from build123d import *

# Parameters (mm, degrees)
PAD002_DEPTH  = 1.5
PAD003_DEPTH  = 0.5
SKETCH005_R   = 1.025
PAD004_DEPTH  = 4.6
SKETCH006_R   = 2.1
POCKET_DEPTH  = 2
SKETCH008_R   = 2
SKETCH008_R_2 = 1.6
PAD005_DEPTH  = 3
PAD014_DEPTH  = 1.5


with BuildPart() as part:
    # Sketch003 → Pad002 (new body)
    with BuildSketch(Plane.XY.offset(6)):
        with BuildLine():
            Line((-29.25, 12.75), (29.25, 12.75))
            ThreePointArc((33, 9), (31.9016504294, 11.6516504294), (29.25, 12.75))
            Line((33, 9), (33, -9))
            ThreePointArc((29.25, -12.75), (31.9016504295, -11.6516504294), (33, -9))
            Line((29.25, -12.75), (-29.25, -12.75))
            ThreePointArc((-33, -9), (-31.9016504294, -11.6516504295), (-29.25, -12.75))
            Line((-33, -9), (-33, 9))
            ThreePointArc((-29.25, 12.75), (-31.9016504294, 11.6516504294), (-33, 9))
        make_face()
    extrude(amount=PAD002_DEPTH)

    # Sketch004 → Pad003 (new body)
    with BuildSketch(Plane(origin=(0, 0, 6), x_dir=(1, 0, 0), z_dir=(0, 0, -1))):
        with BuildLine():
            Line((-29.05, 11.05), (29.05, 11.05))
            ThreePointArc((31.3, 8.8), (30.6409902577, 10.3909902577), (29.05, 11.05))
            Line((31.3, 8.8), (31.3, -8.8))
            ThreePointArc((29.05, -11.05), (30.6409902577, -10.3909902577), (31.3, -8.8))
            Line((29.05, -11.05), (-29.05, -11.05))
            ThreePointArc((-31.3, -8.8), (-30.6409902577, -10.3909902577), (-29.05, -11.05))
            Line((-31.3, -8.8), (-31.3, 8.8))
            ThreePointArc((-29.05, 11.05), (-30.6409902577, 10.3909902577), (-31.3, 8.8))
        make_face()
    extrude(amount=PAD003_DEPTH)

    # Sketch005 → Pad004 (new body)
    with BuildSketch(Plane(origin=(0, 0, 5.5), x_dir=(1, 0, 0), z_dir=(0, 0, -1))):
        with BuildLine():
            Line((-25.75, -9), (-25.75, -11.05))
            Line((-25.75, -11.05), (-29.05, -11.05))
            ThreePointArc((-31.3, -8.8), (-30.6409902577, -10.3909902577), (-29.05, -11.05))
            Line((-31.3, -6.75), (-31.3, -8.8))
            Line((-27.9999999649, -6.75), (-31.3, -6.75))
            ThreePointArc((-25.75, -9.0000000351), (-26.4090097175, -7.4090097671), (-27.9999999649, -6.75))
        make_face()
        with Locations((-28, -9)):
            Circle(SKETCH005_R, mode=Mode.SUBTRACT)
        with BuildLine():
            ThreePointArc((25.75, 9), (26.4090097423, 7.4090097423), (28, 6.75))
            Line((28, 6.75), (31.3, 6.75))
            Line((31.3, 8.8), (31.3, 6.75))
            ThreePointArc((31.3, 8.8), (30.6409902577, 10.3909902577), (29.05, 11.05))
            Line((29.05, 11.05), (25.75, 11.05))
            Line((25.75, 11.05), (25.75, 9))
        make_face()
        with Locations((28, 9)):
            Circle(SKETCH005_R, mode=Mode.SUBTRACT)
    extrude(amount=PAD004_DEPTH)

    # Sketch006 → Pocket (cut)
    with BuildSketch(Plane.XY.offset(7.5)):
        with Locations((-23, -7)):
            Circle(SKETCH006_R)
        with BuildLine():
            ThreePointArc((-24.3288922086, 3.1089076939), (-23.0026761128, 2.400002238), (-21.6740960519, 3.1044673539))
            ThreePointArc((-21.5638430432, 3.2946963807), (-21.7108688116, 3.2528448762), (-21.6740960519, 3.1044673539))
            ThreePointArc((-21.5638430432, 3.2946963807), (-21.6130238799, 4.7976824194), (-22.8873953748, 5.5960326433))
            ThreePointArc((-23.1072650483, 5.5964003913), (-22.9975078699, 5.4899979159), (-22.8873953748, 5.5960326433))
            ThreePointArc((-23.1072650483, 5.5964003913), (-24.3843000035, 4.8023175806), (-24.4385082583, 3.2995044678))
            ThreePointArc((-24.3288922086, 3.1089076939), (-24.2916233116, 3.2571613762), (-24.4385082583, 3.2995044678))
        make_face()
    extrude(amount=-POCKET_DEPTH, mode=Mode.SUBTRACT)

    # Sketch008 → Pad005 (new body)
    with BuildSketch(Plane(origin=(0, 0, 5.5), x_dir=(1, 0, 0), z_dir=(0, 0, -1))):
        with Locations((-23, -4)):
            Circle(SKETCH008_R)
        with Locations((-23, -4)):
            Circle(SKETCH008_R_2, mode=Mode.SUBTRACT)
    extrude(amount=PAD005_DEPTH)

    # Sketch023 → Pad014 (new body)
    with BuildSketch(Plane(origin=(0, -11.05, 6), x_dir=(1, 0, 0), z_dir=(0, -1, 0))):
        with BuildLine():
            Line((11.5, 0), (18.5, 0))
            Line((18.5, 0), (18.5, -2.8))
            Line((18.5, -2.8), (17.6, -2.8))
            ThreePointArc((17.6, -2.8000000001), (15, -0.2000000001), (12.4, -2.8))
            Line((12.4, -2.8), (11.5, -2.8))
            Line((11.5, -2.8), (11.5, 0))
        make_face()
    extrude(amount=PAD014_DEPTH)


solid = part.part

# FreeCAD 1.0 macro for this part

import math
import FreeCAD as App
import Part
import Sketcher
from FreeCAD import Vector
Q = App.Units.Quantity

doc = App.newDocument("Part")
body = doc.addObject("PartDesign::Body", "Body")

# Sketch on XY plane
sketch1 = body.newObject("Sketcher::SketchObject", "Sketch")
sketch1.AttachmentSupport = (doc.getObject("XY_Plane"), [""])
sketch1.MapMode = "FlatFace"
sketch1.AttachmentOffset = App.Placement(Vector(0, 0, 6), App.Rotation())
sketch1.addGeometry(Part.LineSegment(Vector(29.2, 12.8, 0), Vector(-29.2, 12.8, 0)), False)
sketch1.addGeometry(Part.ArcOfCircle(Part.Circle(Vector(-29.2, 9, 0), Vector(0, 0, 1), 3.8), math.radians(90), math.radians(180)), False)
sketch1.addGeometry(Part.LineSegment(Vector(-33, 9, 0), Vector(-33, -9, 0)), False)
sketch1.addGeometry(Part.ArcOfCircle(Part.Circle(Vector(-29.2, -9, 0), Vector(0, 0, 1), 3.8), math.radians(180), math.radians(270)), False)
sketch1.addGeometry(Part.LineSegment(Vector(-29.2, -12.8, 0), Vector(29.2, -12.8, 0)), False)
sketch1.addGeometry(Part.ArcOfCircle(Part.Circle(Vector(29.2, -9, 0), Vector(0, 0, 1), 3.8), math.radians(-90), math.radians(0)), False)
sketch1.addGeometry(Part.LineSegment(Vector(33, -9, 0), Vector(33, 9, 0)), False)
sketch1.addGeometry(Part.ArcOfCircle(Part.Circle(Vector(29.2, 9, 0), Vector(0, 0, 1), 3.8), math.radians(0), math.radians(90)), False)
sketch1.addConstraint(Sketcher.Constraint("Tangent", 0, 2, 1, 1))
sketch1.addConstraint(Sketcher.Constraint("Tangent", 1, 2, 2, 1))
sketch1.addConstraint(Sketcher.Constraint("Tangent", 2, 2, 3, 1))
sketch1.addConstraint(Sketcher.Constraint("Tangent", 3, 2, 4, 1))
sketch1.addConstraint(Sketcher.Constraint("Tangent", 4, 2, 5, 1))
sketch1.addConstraint(Sketcher.Constraint("Tangent", 5, 2, 6, 1))
sketch1.addConstraint(Sketcher.Constraint("Tangent", 6, 2, 7, 1))
sketch1.addConstraint(Sketcher.Constraint("Tangent", 7, 2, 0, 1))
sketch1.addConstraint(Sketcher.Constraint("Horizontal", 0))
sketch1.addConstraint(Sketcher.Constraint("Vertical", 2))
sketch1.addConstraint(Sketcher.Constraint("Horizontal", 4))
sketch1.addConstraint(Sketcher.Constraint("Vertical", 6))
sketch1.addConstraint(Sketcher.Constraint("Equal", 1, 3))
sketch1.addConstraint(Sketcher.Constraint("Equal", 3, 5))
sketch1.addConstraint(Sketcher.Constraint("Equal", 5, 7))
sketch1.addConstraint(Sketcher.Constraint("Symmetric", 1, 3, 5, 3, -1, 1))
sketch1.addConstraint(Sketcher.Constraint("DistanceY", 2, 2, 2, 1, Q("18 mm")))
sketch1.addConstraint(Sketcher.Constraint("Radius", 1, Q("3.75 mm")))
sketch1.addConstraint(Sketcher.Constraint("DistanceX", 0, 2, 0, 1, Q("58.5 mm")))
pad1 = body.newObject("PartDesign::Pad", "Pad")
pad1.Profile = sketch1
pad1.Length = 1.5

# Sketch on XY plane
sketch2 = body.newObject("Sketcher::SketchObject", "Sketch001")
sketch2.AttachmentSupport = (doc.getObject("XY_Plane"), [""])
sketch2.MapMode = "FlatFace"
sketch2.AttachmentOffset = App.Placement(Vector(0, 0, 6), App.Rotation())
sketch2.addGeometry(Part.LineSegment(Vector(29.1, -11.1, 0), Vector(-29.1, -11.1, 0)), False)
sketch2.addGeometry(Part.ArcOfCircle(Part.Circle(Vector(-29.1, -8.8, 0), Vector(0, 0, 1), 2.2), math.radians(180), math.radians(270)), False)
sketch2.addGeometry(Part.LineSegment(Vector(-31.3, -8.8, 0), Vector(-31.3, 8.8, 0)), False)
sketch2.addGeometry(Part.ArcOfCircle(Part.Circle(Vector(-29.1, 8.8, 0), Vector(0, 0, 1), 2.2), math.radians(90), math.radians(180)), False)
sketch2.addGeometry(Part.LineSegment(Vector(-29.1, 11.1, 0), Vector(29.1, 11.1, 0)), False)
sketch2.addGeometry(Part.ArcOfCircle(Part.Circle(Vector(29.1, 8.8, 0), Vector(0, 0, 1), 2.2), math.radians(0), math.radians(90)), False)
sketch2.addGeometry(Part.LineSegment(Vector(31.3, 8.8, 0), Vector(31.3, -8.8, 0)), False)
sketch2.addGeometry(Part.ArcOfCircle(Part.Circle(Vector(29.1, -8.8, 0), Vector(0, 0, 1), 2.2), math.radians(-90), math.radians(0)), False)
sketch2.addConstraint(Sketcher.Constraint("Tangent", 0, 2, 1, 2))
sketch2.addConstraint(Sketcher.Constraint("Tangent", 1, 1, 2, 1))
sketch2.addConstraint(Sketcher.Constraint("Tangent", 2, 2, 3, 2))
sketch2.addConstraint(Sketcher.Constraint("Tangent", 3, 1, 4, 1))
sketch2.addConstraint(Sketcher.Constraint("Tangent", 4, 2, 5, 2))
sketch2.addConstraint(Sketcher.Constraint("Tangent", 5, 1, 6, 1))
sketch2.addConstraint(Sketcher.Constraint("Tangent", 6, 2, 7, 2))
sketch2.addConstraint(Sketcher.Constraint("Tangent", 7, 1, 0, 1))
sketch2.addConstraint(Sketcher.Constraint("Horizontal", 0))
sketch2.addConstraint(Sketcher.Constraint("Vertical", 2))
sketch2.addConstraint(Sketcher.Constraint("Horizontal", 4))
sketch2.addConstraint(Sketcher.Constraint("Vertical", 6))
sketch2.addConstraint(Sketcher.Constraint("Equal", 1, 3))
sketch2.addConstraint(Sketcher.Constraint("Equal", 3, 5))
sketch2.addConstraint(Sketcher.Constraint("Equal", 5, 7))
sketch2.addConstraint(Sketcher.Constraint("Symmetric", 1, 3, 5, 3, -1, 1))
sketch2.addConstraint(Sketcher.Constraint("Radius", 1, Q("2.25 mm")))
sketch2.addConstraint(Sketcher.Constraint("DistanceX", 0, 2, 0, 1, Q("58.1 mm")))
sketch2.addConstraint(Sketcher.Constraint("DistanceY", 2, 1, 2, 2, Q("17.6 mm")))
pad2 = body.newObject("PartDesign::Pad", "Pad001")
pad2.Profile = sketch2
pad2.Length = 0.5
pad2.Reversed = True

# Sketch on XY plane
sketch3 = body.newObject("Sketcher::SketchObject", "Sketch002")
sketch3.AttachmentSupport = (doc.getObject("XY_Plane"), [""])
sketch3.MapMode = "FlatFace"
sketch3.AttachmentOffset = App.Placement(Vector(0, 0, 5.5), App.Rotation())
sketch3.addGeometry(Part.LineSegment(Vector(-25.8, 11.1, 0), Vector(-25.8, 9, 0)), False)
sketch3.addGeometry(Part.ArcOfCircle(Part.Circle(Vector(-28, 9, 0), Vector(0, 0, 1), 2.2), math.radians(-90), math.radians(0)), False)
sketch3.addGeometry(Part.LineSegment(Vector(-28, 6.8, 0), Vector(-31.3, 6.8, 0)), False)
sketch3.addGeometry(Part.LineSegment(Vector(-31.3, 6.8, 0), Vector(-31.3, 8.8, 0)), False)
sketch3.addGeometry(Part.ArcOfCircle(Part.Circle(Vector(-29.1, 8.8, 0), Vector(0, 0, 1), 2.2), math.radians(90), math.radians(180)), False)
sketch3.addGeometry(Part.LineSegment(Vector(-29.1, 11.1, 0), Vector(-25.8, 11.1, 0)), False)
sketch3.addGeometry(Part.Circle(Vector(-28, 9, 0), Vector(0, 0, 1), 1), False)
sketch3.addGeometry(Part.ArcOfCircle(Part.Circle(Vector(28, -9, 0), Vector(0, 0, 1), 2.2), math.radians(90), math.radians(180)), False)
sketch3.addGeometry(Part.LineSegment(Vector(28, -6.8, 0), Vector(31.3, -6.8, 0)), False)
sketch3.addGeometry(Part.LineSegment(Vector(31.3, -6.8, 0), Vector(31.3, -8.8, 0)), False)
sketch3.addGeometry(Part.ArcOfCircle(Part.Circle(Vector(29.1, -8.8, 0), Vector(0, 0, 1), 2.2), math.radians(-90), math.radians(0)), False)
sketch3.addGeometry(Part.LineSegment(Vector(29.1, -11.1, 0), Vector(25.8, -11.1, 0)), False)
sketch3.addGeometry(Part.LineSegment(Vector(25.8, -11.1, 0), Vector(25.8, -9, 0)), False)
sketch3.addGeometry(Part.Circle(Vector(28, -9, 0), Vector(0, 0, 1), 1), False)
sketch3.addConstraint(Sketcher.Constraint("Tangent", 0, 2, 1, 2))
sketch3.addConstraint(Sketcher.Constraint("Tangent", 1, 1, 2, 1))
sketch3.addConstraint(Sketcher.Constraint("Coincident", 2, 2, 3, 1))
sketch3.addConstraint(Sketcher.Constraint("Tangent", 3, 2, 4, 2))
sketch3.addConstraint(Sketcher.Constraint("Tangent", 4, 1, 5, 1))
sketch3.addConstraint(Sketcher.Constraint("Coincident", 5, 2, 0, 1))
sketch3.addConstraint(Sketcher.Constraint("Tangent", 7, 1, 8, 1))
sketch3.addConstraint(Sketcher.Constraint("Coincident", 8, 2, 9, 1))
sketch3.addConstraint(Sketcher.Constraint("Tangent", 9, 2, 10, 2))
sketch3.addConstraint(Sketcher.Constraint("Tangent", 10, 1, 11, 1))
sketch3.addConstraint(Sketcher.Constraint("Coincident", 11, 2, 12, 1))
sketch3.addConstraint(Sketcher.Constraint("Tangent", 12, 2, 7, 2))
sketch3.addConstraint(Sketcher.Constraint("Vertical", 0))
sketch3.addConstraint(Sketcher.Constraint("Horizontal", 2))
sketch3.addConstraint(Sketcher.Constraint("Vertical", 3))
sketch3.addConstraint(Sketcher.Constraint("Horizontal", 5))
sketch3.addConstraint(Sketcher.Constraint("Horizontal", 8))
sketch3.addConstraint(Sketcher.Constraint("Vertical", 9))
sketch3.addConstraint(Sketcher.Constraint("Horizontal", 11))
sketch3.addConstraint(Sketcher.Constraint("Vertical", 12))
sketch3.addConstraint(Sketcher.Constraint("Coincident", 6, 3, 1, 3))
sketch3.addConstraint(Sketcher.Constraint("Coincident", 13, 3, 7, 3))
sketch3.addConstraint(Sketcher.Constraint("Equal", 1, 4))
sketch3.addConstraint(Sketcher.Constraint("Equal", 4, 7))
sketch3.addConstraint(Sketcher.Constraint("Equal", 7, 10))
sketch3.addConstraint(Sketcher.Constraint("Equal", 6, 13))
sketch3.addConstraint(Sketcher.Constraint("Symmetric", 1, 3, 7, 3, -1, 1))
sketch3.addConstraint(Sketcher.Constraint("Symmetric", 4, 3, 10, 3, -1, 1))
sketch3.addConstraint(Sketcher.Constraint("Diameter", 6, Q("2.05 mm")))
sketch3.addConstraint(Sketcher.Constraint("Radius", 1, Q("2.25 mm")))
sketch3.addConstraint(Sketcher.Constraint("DistanceX", 2, 2, 2, 1, Q("3.3 mm")))
sketch3.addConstraint(Sketcher.Constraint("DistanceX", 1, 3, -1, 1, Q("28 mm")))
sketch3.addConstraint(Sketcher.Constraint("DistanceY", -1, 1, 1, 3, Q("9 mm")))
sketch3.addConstraint(Sketcher.Constraint("DistanceY", 0, 2, 0, 1, Q("2.05 mm")))
pad3 = body.newObject("PartDesign::Pad", "Pad002")
pad3.Profile = sketch3
pad3.Length = 4.6
pad3.Reversed = True

# Sketch on XY plane
sketch4 = body.newObject("Sketcher::SketchObject", "Sketch003")
sketch4.AttachmentSupport = (doc.getObject("XY_Plane"), [""])
sketch4.MapMode = "FlatFace"
sketch4.AttachmentOffset = App.Placement(Vector(0, 0, 7.5), App.Rotation())
sketch4.addGeometry(Part.Circle(Vector(-23, -7, 0), Vector(0, 0, 1), 2.1), False)
sketch4.addGeometry(Part.ArcOfCircle(Part.Circle(Vector(-23, 4, 0), Vector(0, 0, 1), 1.6), math.radians(-146), math.radians(-34)), False)
sketch4.addGeometry(Part.ArcOfCircle(Part.Circle(Vector(-21.62, 3.2, 0), Vector(0, 0, 1), 0.11), math.radians(62), math.radians(238)), False)
sketch4.addGeometry(Part.ArcOfCircle(Part.Circle(Vector(-23, 4, 0), Vector(0, 0, 1), 1.6), math.radians(-26), math.radians(86)), False)
sketch4.addGeometry(Part.ArcOfCircle(Part.Circle(Vector(-23, 5.6, 0), Vector(0, 0, 1), 0.11), math.radians(-178), math.radians(-2)), False)
sketch4.addGeometry(Part.ArcOfCircle(Part.Circle(Vector(-23, 4, 0), Vector(0, 0, 1), 1.6), math.radians(94), math.radians(206)), False)
sketch4.addGeometry(Part.ArcOfCircle(Part.Circle(Vector(-24.39, 3.2, 0), Vector(0, 0, 1), 0.11), math.radians(-58), math.radians(118)), False)
sketch4.addConstraint(Sketcher.Constraint("Coincident", 1, 2, 2, 2))
sketch4.addConstraint(Sketcher.Constraint("Coincident", 2, 1, 3, 1))
sketch4.addConstraint(Sketcher.Constraint("Coincident", 3, 2, 4, 2))
sketch4.addConstraint(Sketcher.Constraint("Coincident", 4, 1, 5, 1))
sketch4.addConstraint(Sketcher.Constraint("Coincident", 5, 2, 6, 2))
sketch4.addConstraint(Sketcher.Constraint("Coincident", 6, 1, 1, 1))
sketch4.addConstraint(Sketcher.Constraint("Coincident", 3, 3, 1, 3))
sketch4.addConstraint(Sketcher.Constraint("Coincident", 5, 3, 1, 3))
sketch4.addConstraint(Sketcher.Constraint("Equal", 1, 3))
sketch4.addConstraint(Sketcher.Constraint("Equal", 2, 4))
sketch4.addConstraint(Sketcher.Constraint("Equal", 3, 5))
sketch4.addConstraint(Sketcher.Constraint("Equal", 4, 6))
sketch4.addConstraint(Sketcher.Constraint("Vertical", 0, 3, 1, 3))
sketch4.addConstraint(Sketcher.Constraint("Diameter", 0, Q("4.2 mm")))
sketch4.addConstraint(Sketcher.Constraint("Radius", 1, Q("1.6 mm")))
sketch4.addConstraint(Sketcher.Constraint("Radius", 2, Q("0.11 mm")))
sketch4.addConstraint(Sketcher.Constraint("DistanceX", 0, 3, -1, 1, Q("23 mm")))
sketch4.addConstraint(Sketcher.Constraint("DistanceY", 0, 3, -1, 1, Q("7 mm")))
sketch4.addConstraint(Sketcher.Constraint("DistanceY", -1, 1, 1, 3, Q("4 mm")))
sketch4.addConstraint(Sketcher.Constraint("DistanceX", 2, 3, -1, 1, Q("21.615698 mm")))
sketch4.addConstraint(Sketcher.Constraint("DistanceY", -1, 1, 4, 1, Q("5.5964 mm")))
sketch4.addConstraint(Sketcher.Constraint("DistanceX", 6, 3, -1, 1, Q("24.386978 mm")))
sketch4.addConstraint(Sketcher.Constraint("DistanceY", -1, 1, 6, 3, Q("3.202321 mm")))
sketch4.addConstraint(Sketcher.Constraint("DistanceY", 2, 3, 4, 3, Q("2.402312 mm")))
sketch4.addConstraint(Sketcher.Constraint("DistanceY", 1, 2, 2, 3, Q("0.093218 mm")))
pocket1 = body.newObject("PartDesign::Pocket", "Pocket")
pocket1.Profile = sketch4
pocket1.Length = 2

# Sketch on XY plane
sketch5 = body.newObject("Sketcher::SketchObject", "Sketch004")
sketch5.AttachmentSupport = (doc.getObject("XY_Plane"), [""])
sketch5.MapMode = "FlatFace"
sketch5.AttachmentOffset = App.Placement(Vector(0, 0, 5.5), App.Rotation())
sketch5.addGeometry(Part.Circle(Vector(-23, 4, 0), Vector(0, 0, 1), 2), False)
sketch5.addGeometry(Part.Circle(Vector(-23, 4, 0), Vector(0, 0, 1), 1.6), False)
sketch5.addConstraint(Sketcher.Constraint("Coincident", 1, 3, 0, 3))
sketch5.addConstraint(Sketcher.Constraint("Diameter", 0, Q("4 mm")))
sketch5.addConstraint(Sketcher.Constraint("Diameter", 1, Q("3.2 mm")))
sketch5.addConstraint(Sketcher.Constraint("DistanceX", 0, 3, -1, 1, Q("23 mm")))
sketch5.addConstraint(Sketcher.Constraint("DistanceY", -1, 1, 0, 3, Q("4 mm")))
pad4 = body.newObject("PartDesign::Pad", "Pad003")
pad4.Profile = sketch5
pad4.Length = 3
pad4.Reversed = True

# Sketch on XZ plane
sketch6 = body.newObject("Sketcher::SketchObject", "Sketch005")
sketch6.AttachmentSupport = (doc.getObject("XZ_Plane"), [""])
sketch6.MapMode = "FlatFace"
sketch6.AttachmentOffset = App.Placement(Vector(0, 0, 11.05), App.Rotation())
sketch6.addGeometry(Part.LineSegment(Vector(18.5, 6, 0), Vector(11.5, 6, 0)), False)
sketch6.addGeometry(Part.LineSegment(Vector(11.5, 6, 0), Vector(11.5, 3.2, 0)), False)
sketch6.addGeometry(Part.LineSegment(Vector(11.5, 3.2, 0), Vector(12.4, 3.2, 0)), False)
sketch6.addGeometry(Part.ArcOfCircle(Part.Circle(Vector(15, 3.2, 0), Vector(0, 0, 1), 2.6), math.radians(0), math.radians(180)), False)
sketch6.addGeometry(Part.LineSegment(Vector(17.6, 3.2, 0), Vector(18.5, 3.2, 0)), False)
sketch6.addGeometry(Part.LineSegment(Vector(18.5, 3.2, 0), Vector(18.5, 6, 0)), False)
sketch6.addConstraint(Sketcher.Constraint("Coincident", 0, 2, 1, 1))
sketch6.addConstraint(Sketcher.Constraint("Coincident", 1, 2, 2, 1))
sketch6.addConstraint(Sketcher.Constraint("Coincident", 2, 2, 3, 2))
sketch6.addConstraint(Sketcher.Constraint("Coincident", 3, 1, 4, 1))
sketch6.addConstraint(Sketcher.Constraint("Coincident", 4, 2, 5, 1))
sketch6.addConstraint(Sketcher.Constraint("Coincident", 5, 2, 0, 1))
sketch6.addConstraint(Sketcher.Constraint("Horizontal", 0))
sketch6.addConstraint(Sketcher.Constraint("Vertical", 1))
sketch6.addConstraint(Sketcher.Constraint("Horizontal", 2))
sketch6.addConstraint(Sketcher.Constraint("Horizontal", 4))
sketch6.addConstraint(Sketcher.Constraint("Vertical", 5))
sketch6.addConstraint(Sketcher.Constraint("Horizontal", 3, 3, 1, 2))
sketch6.addConstraint(Sketcher.Constraint("Horizontal", 2, 2, 3, 1))
sketch6.addConstraint(Sketcher.Constraint("Equal", 2, 4))
sketch6.addConstraint(Sketcher.Constraint("Radius", 3, Q("2.6 mm")))
sketch6.addConstraint(Sketcher.Constraint("DistanceX", 0, 2, 0, 1, Q("7 mm")))
sketch6.addConstraint(Sketcher.Constraint("DistanceY", 1, 2, 1, 1, Q("2.8 mm")))
sketch6.addConstraint(Sketcher.Constraint("DistanceX", -1, 1, 3, 3, Q("15 mm")))
sketch6.addConstraint(Sketcher.Constraint("DistanceY", -1, 1, 0, 2, Q("6 mm")))
pad5 = body.newObject("PartDesign::Pad", "Pad004")
pad5.Profile = sketch6
pad5.Length = 1.5

doc.recompute()
